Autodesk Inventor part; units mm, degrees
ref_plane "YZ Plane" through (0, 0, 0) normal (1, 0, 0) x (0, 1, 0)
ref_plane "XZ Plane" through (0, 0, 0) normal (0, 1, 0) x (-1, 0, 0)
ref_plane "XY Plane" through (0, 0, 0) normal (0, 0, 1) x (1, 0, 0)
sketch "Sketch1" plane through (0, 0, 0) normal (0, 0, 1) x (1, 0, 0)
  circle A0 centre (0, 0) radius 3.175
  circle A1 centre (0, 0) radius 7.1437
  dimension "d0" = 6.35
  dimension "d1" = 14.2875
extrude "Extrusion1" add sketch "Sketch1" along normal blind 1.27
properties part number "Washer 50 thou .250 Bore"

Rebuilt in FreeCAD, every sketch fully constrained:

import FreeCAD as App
import Part
import Sketcher

V = App.Vector
Q = App.Units.Quantity

doc = App.newDocument("Part")
body = doc.addObject("PartDesign::Body", "Body")

# Sketch on XY plane
sketch1 = doc.addObject("Sketcher::SketchObject", "Sketch")
body.addObject(sketch1)
sketch1.AttachmentSupport = (doc.XY_Plane, [""])
sketch1.MapMode = "FlatFace"
sketch1.addGeometry([
    Part.Circle(V(0, 0, 0), V(0, 0, 1), 7.1437),
    Part.Circle(V(0, 0, 0), V(0, 0, 1), 3.175),
], False)
sketch1.addConstraint([
    Sketcher.Constraint("Coincident", 0, 3, -1, 1),
    Sketcher.Constraint("Coincident", 1, 3, -1, 1),
    Sketcher.Constraint("Diameter", 1, Q("0.25 in")),
    Sketcher.Constraint("Diameter", 0, Q("0.5625 in")),
])
pad1 = doc.addObject("PartDesign::Pad", "Pad")
body.addObject(pad1)
pad1.Profile = sketch1
pad1.Length = Q("0.05 in")

doc.recompute()
